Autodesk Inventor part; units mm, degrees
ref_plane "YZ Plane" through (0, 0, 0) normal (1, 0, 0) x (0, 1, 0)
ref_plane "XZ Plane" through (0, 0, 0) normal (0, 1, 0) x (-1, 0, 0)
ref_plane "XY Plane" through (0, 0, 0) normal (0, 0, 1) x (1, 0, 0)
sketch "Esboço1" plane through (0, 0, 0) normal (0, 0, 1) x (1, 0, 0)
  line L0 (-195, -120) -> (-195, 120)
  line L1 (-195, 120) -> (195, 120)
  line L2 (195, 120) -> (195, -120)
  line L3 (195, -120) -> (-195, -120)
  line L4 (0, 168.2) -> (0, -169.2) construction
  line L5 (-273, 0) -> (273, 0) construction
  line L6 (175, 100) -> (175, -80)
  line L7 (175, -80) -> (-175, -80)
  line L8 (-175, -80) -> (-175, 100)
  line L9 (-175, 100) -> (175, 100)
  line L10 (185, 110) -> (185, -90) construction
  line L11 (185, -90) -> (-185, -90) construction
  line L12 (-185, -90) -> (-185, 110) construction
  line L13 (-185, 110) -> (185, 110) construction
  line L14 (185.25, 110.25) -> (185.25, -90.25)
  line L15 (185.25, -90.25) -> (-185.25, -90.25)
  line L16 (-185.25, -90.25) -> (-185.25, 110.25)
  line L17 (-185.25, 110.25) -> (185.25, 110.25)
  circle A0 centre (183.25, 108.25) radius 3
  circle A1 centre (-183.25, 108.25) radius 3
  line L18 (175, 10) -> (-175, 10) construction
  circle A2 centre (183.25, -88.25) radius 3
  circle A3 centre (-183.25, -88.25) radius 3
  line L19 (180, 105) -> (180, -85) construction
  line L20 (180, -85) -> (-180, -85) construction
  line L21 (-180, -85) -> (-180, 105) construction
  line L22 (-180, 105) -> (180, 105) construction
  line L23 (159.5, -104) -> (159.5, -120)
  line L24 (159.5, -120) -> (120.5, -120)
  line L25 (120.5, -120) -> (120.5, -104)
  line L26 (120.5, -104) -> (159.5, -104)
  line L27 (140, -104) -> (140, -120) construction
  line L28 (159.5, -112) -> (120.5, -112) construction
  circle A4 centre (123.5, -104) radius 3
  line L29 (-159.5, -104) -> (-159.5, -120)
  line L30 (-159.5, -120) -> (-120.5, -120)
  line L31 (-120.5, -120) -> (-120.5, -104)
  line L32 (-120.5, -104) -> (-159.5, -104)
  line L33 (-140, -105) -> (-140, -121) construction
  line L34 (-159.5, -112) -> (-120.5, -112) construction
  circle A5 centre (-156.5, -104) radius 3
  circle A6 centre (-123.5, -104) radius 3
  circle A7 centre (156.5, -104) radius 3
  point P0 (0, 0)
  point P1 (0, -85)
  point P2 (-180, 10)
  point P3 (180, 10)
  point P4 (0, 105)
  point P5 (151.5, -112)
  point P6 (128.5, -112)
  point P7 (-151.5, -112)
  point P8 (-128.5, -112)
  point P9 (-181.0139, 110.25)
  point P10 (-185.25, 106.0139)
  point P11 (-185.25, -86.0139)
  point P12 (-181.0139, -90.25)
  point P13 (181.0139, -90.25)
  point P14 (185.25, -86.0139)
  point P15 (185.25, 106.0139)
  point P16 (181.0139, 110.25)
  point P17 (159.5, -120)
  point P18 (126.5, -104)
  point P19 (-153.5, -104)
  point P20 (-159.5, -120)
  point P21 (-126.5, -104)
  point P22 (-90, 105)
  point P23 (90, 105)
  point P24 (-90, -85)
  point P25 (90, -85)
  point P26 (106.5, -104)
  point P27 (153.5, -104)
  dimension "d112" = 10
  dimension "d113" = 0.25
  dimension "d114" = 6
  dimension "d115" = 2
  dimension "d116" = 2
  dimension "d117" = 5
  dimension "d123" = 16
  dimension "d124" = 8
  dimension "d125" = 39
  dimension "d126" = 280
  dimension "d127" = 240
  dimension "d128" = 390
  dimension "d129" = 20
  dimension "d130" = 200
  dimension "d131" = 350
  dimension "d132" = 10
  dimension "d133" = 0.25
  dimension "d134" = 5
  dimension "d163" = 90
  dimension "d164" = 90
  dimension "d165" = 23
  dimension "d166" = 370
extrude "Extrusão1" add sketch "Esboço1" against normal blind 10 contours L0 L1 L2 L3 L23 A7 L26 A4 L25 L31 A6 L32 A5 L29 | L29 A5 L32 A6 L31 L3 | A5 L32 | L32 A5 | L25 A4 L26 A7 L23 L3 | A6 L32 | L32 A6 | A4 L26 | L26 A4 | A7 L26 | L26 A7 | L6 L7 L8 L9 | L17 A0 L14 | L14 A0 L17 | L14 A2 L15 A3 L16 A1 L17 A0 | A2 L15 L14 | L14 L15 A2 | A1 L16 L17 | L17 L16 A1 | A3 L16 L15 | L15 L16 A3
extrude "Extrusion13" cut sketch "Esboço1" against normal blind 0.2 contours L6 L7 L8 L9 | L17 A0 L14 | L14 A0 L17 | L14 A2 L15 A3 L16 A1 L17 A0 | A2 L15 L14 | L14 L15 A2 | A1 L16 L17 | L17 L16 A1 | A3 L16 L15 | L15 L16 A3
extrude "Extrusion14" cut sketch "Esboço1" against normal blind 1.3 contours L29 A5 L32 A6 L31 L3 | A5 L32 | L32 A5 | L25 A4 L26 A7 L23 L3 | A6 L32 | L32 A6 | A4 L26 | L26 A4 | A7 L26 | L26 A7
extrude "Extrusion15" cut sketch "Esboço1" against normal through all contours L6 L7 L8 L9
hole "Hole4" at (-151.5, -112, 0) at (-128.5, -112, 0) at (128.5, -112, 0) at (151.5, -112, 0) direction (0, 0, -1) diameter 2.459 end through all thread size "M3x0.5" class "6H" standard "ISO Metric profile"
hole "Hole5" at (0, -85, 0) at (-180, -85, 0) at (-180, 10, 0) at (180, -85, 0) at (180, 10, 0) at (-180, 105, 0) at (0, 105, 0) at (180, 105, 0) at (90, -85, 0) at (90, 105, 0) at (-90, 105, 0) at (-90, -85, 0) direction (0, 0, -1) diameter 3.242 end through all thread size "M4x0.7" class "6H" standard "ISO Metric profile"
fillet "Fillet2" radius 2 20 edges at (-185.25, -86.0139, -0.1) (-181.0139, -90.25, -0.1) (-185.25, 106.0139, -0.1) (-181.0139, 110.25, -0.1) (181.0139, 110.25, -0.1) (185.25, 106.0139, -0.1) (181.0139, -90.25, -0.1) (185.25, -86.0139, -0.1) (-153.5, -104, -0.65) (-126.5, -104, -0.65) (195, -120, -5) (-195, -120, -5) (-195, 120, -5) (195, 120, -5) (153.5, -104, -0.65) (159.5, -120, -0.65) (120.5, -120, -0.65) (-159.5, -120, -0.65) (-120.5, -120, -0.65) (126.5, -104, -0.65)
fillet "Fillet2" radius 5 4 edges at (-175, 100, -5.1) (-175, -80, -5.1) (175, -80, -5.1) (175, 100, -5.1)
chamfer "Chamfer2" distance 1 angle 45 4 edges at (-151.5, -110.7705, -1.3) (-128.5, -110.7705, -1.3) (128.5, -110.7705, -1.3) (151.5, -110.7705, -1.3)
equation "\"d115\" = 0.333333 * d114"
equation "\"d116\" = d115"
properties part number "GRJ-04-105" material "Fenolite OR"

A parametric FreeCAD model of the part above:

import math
import FreeCAD as App
import Part
import Sketcher

V = App.Vector
Q = App.Units.Quantity


def edges_at(feature, points):
    """Names of the edges that pass closest to the given points."""
    edges = feature.Shape.Edges
    near = lambda p: min(range(len(edges)), key=lambda i: edges[i].distToShape(Part.Vertex(*p))[0])
    return sorted({f"Edge{near(p) + 1}" for p in points})

doc = App.newDocument("Part")
body = doc.addObject("PartDesign::Body", "Body")

sketch1 = body.newObject("Sketcher::SketchObject", "Sketch")
sketch1.AttachmentSupport = (doc.getObject("XY_Plane"), [""])
sketch1.MapMode = "FlatFace"
sketch1.addGeometry([
    Part.LineSegment(V(-195, 120, 0), V(-195, -120, 0)),
    Part.LineSegment(V(-195, -120, 0), V(195, -120, 0)),
    Part.LineSegment(V(195, -120, 0), V(195, 120, 0)),
    Part.LineSegment(V(195, 120, 0), V(-195, 120, 0)),
], False)
sketch1.addConstraint([
    Sketcher.Constraint("Coincident", 0, 2, 1, 1),
    Sketcher.Constraint("Coincident", 1, 2, 2, 1),
    Sketcher.Constraint("Coincident", 2, 2, 3, 1),
    Sketcher.Constraint("Coincident", 3, 2, 0, 1),
    Sketcher.Constraint("Vertical", 0),
    Sketcher.Constraint("Horizontal", 1),
    Sketcher.Constraint("Vertical", 2),
    Sketcher.Constraint("Horizontal", 3),
    Sketcher.Constraint("Symmetric", 0, 2, 2, 2, -1, 1),
    Sketcher.Constraint("DistanceX", 1, 1, 1, 2, Q("390 mm")),
    Sketcher.Constraint("DistanceY", 0, 2, 0, 1, Q("240 mm")),
])
pad1 = body.newObject("PartDesign::Pad", "Pad")
pad1.Profile = sketch1
pad1.Length = 10
pad1.Reversed = True

sketch2 = body.newObject("Sketcher::SketchObject", "Sketch001")
sketch2.AttachmentSupport = (doc.getObject("XY_Plane"), [""])
sketch2.MapMode = "FlatFace"
sketch2.addGeometry([
    Part.LineSegment(V(185.2, -86, 0), V(185.2, 106, 0)),
    Part.ArcOfCircle(Part.Circle(V(183.2, 108.2, 0), V(0, 0, 1), 3), math.radians(-48), math.radians(138)),
    Part.LineSegment(V(181, 110.2, 0), V(-181, 110.2, 0)),
    Part.ArcOfCircle(Part.Circle(V(-183.2, 108.2, 0), V(0, 0, 1), 3), math.radians(42), math.radians(228)),
    Part.LineSegment(V(-185.2, 106, 0), V(-185.2, -86, 0)),
    Part.ArcOfCircle(Part.Circle(V(-183.2, -88.2, 0), V(0, 0, 1), 3), math.radians(132), math.radians(318)),
    Part.LineSegment(V(-181, -90.2, 0), V(181, -90.2, 0)),
    Part.ArcOfCircle(Part.Circle(V(183.2, -88.2, 0), V(0, 0, 1), 3), math.radians(-138), math.radians(48)),
], False)
sketch2.addConstraint([
    Sketcher.Constraint("Coincident", 0, 2, 1, 1),
    Sketcher.Constraint("Coincident", 1, 2, 2, 1),
    Sketcher.Constraint("Coincident", 2, 2, 3, 1),
    Sketcher.Constraint("Coincident", 3, 2, 4, 1),
    Sketcher.Constraint("Coincident", 4, 2, 5, 1),
    Sketcher.Constraint("Coincident", 5, 2, 6, 1),
    Sketcher.Constraint("Coincident", 6, 2, 7, 1),
    Sketcher.Constraint("Coincident", 7, 2, 0, 1),
    Sketcher.Constraint("Vertical", 0),
    Sketcher.Constraint("Horizontal", 2),
    Sketcher.Constraint("Vertical", 4),
    Sketcher.Constraint("Horizontal", 6),
    Sketcher.Constraint("Equal", 1, 3),
    Sketcher.Constraint("Equal", 3, 5),
    Sketcher.Constraint("Equal", 5, 7),
    Sketcher.Constraint("Symmetric", 1, 3, 3, 3, -2),
    Sketcher.Constraint("Symmetric", 5, 3, 7, 3, -2),
    Sketcher.Constraint("Horizontal", 0, 2, 3, 2),
    Sketcher.Constraint("Vertical", 3, 3, 5, 3),
    Sketcher.Constraint("Vertical", 2, 2, 5, 2),
    Sketcher.Constraint("Radius", 1, Q("3 mm")),
    Sketcher.Constraint("DistanceX", 1, 3, 0, 2, Q("2 mm")),
    Sketcher.Constraint("DistanceY", 1, 3, 1, 2, Q("2 mm")),
    Sketcher.Constraint("DistanceX", 3, 3, 1, 3, Q("366.5 mm")),
    Sketcher.Constraint("DistanceY", 5, 3, 3, 3, Q("196.5 mm")),
    Sketcher.Constraint("DistanceY", -1, 1, 1, 3, Q("108.25 mm")),
])
pocket1 = body.newObject("PartDesign::Pocket", "Pocket")
pocket1.Profile = sketch2
pocket1.Length = 0.2

sketch3 = body.newObject("Sketcher::SketchObject", "Sketch002")
sketch3.AttachmentSupport = (doc.getObject("XY_Plane"), [""])
sketch3.MapMode = "FlatFace"
sketch3.addGeometry([
    Part.LineSegment(V(-159.5, -104, 0), V(-159.5, -120, 0)),
    Part.LineSegment(V(-159.5, -120, 0), V(-120.5, -120, 0)),
    Part.LineSegment(V(-120.5, -120, 0), V(-120.5, -104, 0)),
    Part.ArcOfCircle(Part.Circle(V(-123.5, -104, 0), V(0, 0, 1), 3), math.radians(0), math.radians(180)),
    Part.LineSegment(V(-126.5, -104, 0), V(-153.5, -104, 0)),
    Part.ArcOfCircle(Part.Circle(V(-156.5, -104, 0), V(0, 0, 1), 3), math.radians(0), math.radians(180)),
    Part.LineSegment(V(120.5, -104, 0), V(120.5, -120, 0)),
    Part.LineSegment(V(120.5, -120, 0), V(159.5, -120, 0)),
    Part.LineSegment(V(159.5, -120, 0), V(159.5, -104, 0)),
    Part.ArcOfCircle(Part.Circle(V(156.5, -104, 0), V(0, 0, 1), 3), math.radians(0), math.radians(180)),
    Part.LineSegment(V(153.5, -104, 0), V(126.5, -104, 0)),
    Part.ArcOfCircle(Part.Circle(V(123.5, -104, 0), V(0, 0, 1), 3), math.radians(0), math.radians(180)),
], False)
sketch3.addConstraint([
    Sketcher.Constraint("Coincident", 0, 2, 1, 1),
    Sketcher.Constraint("Coincident", 1, 2, 2, 1),
    Sketcher.Constraint("Tangent", 2, 2, 3, 1),
    Sketcher.Constraint("Coincident", 3, 2, 4, 1),
    Sketcher.Constraint("Coincident", 4, 2, 5, 1),
    Sketcher.Constraint("Tangent", 5, 2, 0, 1),
    Sketcher.Constraint("Coincident", 6, 2, 7, 1),
    Sketcher.Constraint("Coincident", 7, 2, 8, 1),
    Sketcher.Constraint("Tangent", 8, 2, 9, 1),
    Sketcher.Constraint("Coincident", 9, 2, 10, 1),
    Sketcher.Constraint("Coincident", 10, 2, 11, 1),
    Sketcher.Constraint("Tangent", 11, 2, 6, 1),
    Sketcher.Constraint("Vertical", 0),
    Sketcher.Constraint("Horizontal", 1),
    Sketcher.Constraint("Vertical", 2),
    Sketcher.Constraint("Horizontal", 4),
    Sketcher.Constraint("Vertical", 6),
    Sketcher.Constraint("Horizontal", 7),
    Sketcher.Constraint("Vertical", 8),
    Sketcher.Constraint("Horizontal", 10),
    Sketcher.Constraint("Equal", 3, 5),
    Sketcher.Constraint("Equal", 5, 9),
    Sketcher.Constraint("Equal", 9, 11),
    Sketcher.Constraint("Symmetric", 5, 3, 9, 3, -2),
    Sketcher.Constraint("Symmetric", 3, 3, 11, 3, -2),
    Sketcher.Constraint("Horizontal", 3, 3, 5, 3),
    Sketcher.Constraint("Horizontal", 2, 2, 3, 2),
    Sketcher.Constraint("Horizontal", 1, 2, 6, 2),
    Sketcher.Constraint("Horizontal", 8, 2, 9, 2),
    Sketcher.Constraint("Radius", 3, Q("3 mm")),
    Sketcher.Constraint("DistanceX", 1, 1, 1, 2, Q("39 mm")),
    Sketcher.Constraint("DistanceY", 0, 2, 0, 1, Q("16 mm")),
    Sketcher.Constraint("DistanceX", 3, 3, 9, 3, Q("280 mm")),
    Sketcher.Constraint("DistanceY", 3, 3, -1, 1, Q("104 mm")),
])
pocket2 = body.newObject("PartDesign::Pocket", "Pocket001")
pocket2.Profile = sketch3
pocket2.Length = 1.3

sketch4 = body.newObject("Sketcher::SketchObject", "Sketch003")
sketch4.AttachmentSupport = (doc.getObject("XY_Plane"), [""])
sketch4.MapMode = "FlatFace"
sketch4.addGeometry([
    Part.LineSegment(V(175, -80, 0), V(175, 100, 0)),
    Part.LineSegment(V(175, 100, 0), V(-175, 100, 0)),
    Part.LineSegment(V(-175, 100, 0), V(-175, -80, 0)),
    Part.LineSegment(V(-175, -80, 0), V(175, -80, 0)),
], False)
sketch4.addConstraint([
    Sketcher.Constraint("Coincident", 0, 2, 1, 1),
    Sketcher.Constraint("Coincident", 1, 2, 2, 1),
    Sketcher.Constraint("Coincident", 2, 2, 3, 1),
    Sketcher.Constraint("Coincident", 3, 2, 0, 1),
    Sketcher.Constraint("Vertical", 0),
    Sketcher.Constraint("Horizontal", 1),
    Sketcher.Constraint("Vertical", 2),
    Sketcher.Constraint("Horizontal", 3),
    Sketcher.Constraint("DistanceX", 1, 2, 1, 1, Q("350 mm")),
    Sketcher.Constraint("DistanceY", 0, 1, 0, 2, Q("180 mm")),
    Sketcher.Constraint("DistanceX", -1, 1, 0, 2, Q("175 mm")),
    Sketcher.Constraint("DistanceY", -1, 1, 0, 2, Q("100 mm")),
])
pocket3 = body.newObject("PartDesign::Pocket", "Pocket002")
pocket3.Profile = sketch4
pocket3.Type = "ThroughAll"

sketch5 = body.newObject("Sketcher::SketchObject", "Sketch004")
sketch5.AttachmentSupport = (doc.getObject("XY_Plane"), [""])
sketch5.MapMode = "FlatFace"
sketch5.addGeometry([
    Part.Circle(V(-151.5, -112, 0), V(0, 0, 1), 1.2),
    Part.Circle(V(-128.5, -112, 0), V(0, 0, 1), 1.2),
    Part.Circle(V(128.5, -112, 0), V(0, 0, 1), 1.2),
    Part.Circle(V(151.5, -112, 0), V(0, 0, 1), 1.2),
], False)
sketch5.addConstraint([
    Sketcher.Constraint("Equal", 0, 1),
    Sketcher.Constraint("Equal", 1, 2),
    Sketcher.Constraint("Equal", 2, 3),
    Sketcher.Constraint("Symmetric", 1, 3, 2, 3, -2),
    Sketcher.Constraint("Symmetric", 0, 3, 3, 3, -2),
    Sketcher.Constraint("Horizontal", 0, 3, 1, 3),
    Sketcher.Constraint("Diameter", 0, Q("2.459 mm")),
    Sketcher.Constraint("DistanceY", 0, 3, -1, 1, Q("112 mm")),
    Sketcher.Constraint("DistanceX", 0, 3, 1, 3, Q("23 mm")),
    Sketcher.Constraint("DistanceX", 1, 3, 2, 3, Q("257 mm")),
])
doc.recompute()
hole = body.newObject("PartDesign::Hole", "Hole")
hole.Profile = sketch5
hole.ThreadType = "None"
hole.Diameter = 2.459
hole.DepthType = "ThroughAll"

sketch6 = body.newObject("Sketcher::SketchObject", "Sketch005")
sketch6.AttachmentSupport = (doc.getObject("XY_Plane"), [""])
sketch6.MapMode = "FlatFace"
sketch6.addGeometry([
    Part.Circle(V(0, -85, 0), V(0, 0, 1), 1.6),
    Part.Circle(V(-180, -85, 0), V(0, 0, 1), 1.6),
    Part.Circle(V(-180, 10, 0), V(0, 0, 1), 1.6),
    Part.Circle(V(180, -85, 0), V(0, 0, 1), 1.6),
    Part.Circle(V(180, 10, 0), V(0, 0, 1), 1.6),
    Part.Circle(V(-180, 105, 0), V(0, 0, 1), 1.6),
    Part.Circle(V(0, 105, 0), V(0, 0, 1), 1.6),
    Part.Circle(V(180, 105, 0), V(0, 0, 1), 1.6),
    Part.Circle(V(90, -85, 0), V(0, 0, 1), 1.6),
    Part.Circle(V(90, 105, 0), V(0, 0, 1), 1.6),
    Part.Circle(V(-90, 105, 0), V(0, 0, 1), 1.6),
    Part.Circle(V(-90, -85, 0), V(0, 0, 1), 1.6),
], False)
sketch6.addConstraint([
    Sketcher.Constraint("Equal", 0, 1),
    Sketcher.Constraint("Equal", 1, 2),
    Sketcher.Constraint("Equal", 2, 3),
    Sketcher.Constraint("Equal", 3, 4),
    Sketcher.Constraint("Equal", 4, 5),
    Sketcher.Constraint("Equal", 5, 6),
    Sketcher.Constraint("Equal", 6, 7),
    Sketcher.Constraint("Equal", 7, 8),
    Sketcher.Constraint("Equal", 8, 9),
    Sketcher.Constraint("Equal", 9, 10),
    Sketcher.Constraint("Equal", 10, 11),
    Sketcher.Constraint("Symmetric", 1, 3, 3, 3, -2),
    Sketcher.Constraint("Symmetric", 2, 3, 4, 3, -2),
    Sketcher.Constraint("Symmetric", 5, 3, 7, 3, -2),
    Sketcher.Constraint("Symmetric", 9, 3, 10, 3, -2),
    Sketcher.Constraint("Symmetric", 8, 3, 11, 3, -2),
    Sketcher.Constraint("PointOnObject", 0, 3, -2),
    Sketcher.Constraint("PointOnObject", 6, 3, -2),
    Sketcher.Constraint("Horizontal", 0, 3, 1, 3),
    Sketcher.Constraint("Horizontal", 5, 3, 6, 3),
    Sketcher.Constraint("Horizontal", 3, 3, 8, 3),
    Sketcher.Constraint("Horizontal", 7, 3, 9, 3),
    Sketcher.Constraint("Vertical", 1, 3, 2, 3),
    Sketcher.Constraint("Vertical", 2, 3, 5, 3),
    Sketcher.Constraint("Vertical", 8, 3, 9, 3),
    Sketcher.Constraint("Diameter", 0, Q("3.242 mm")),
    Sketcher.Constraint("DistanceY", 0, 3, -1, 1, Q("85 mm")),
    Sketcher.Constraint("DistanceX", 1, 3, -1, 1, Q("180 mm")),
    Sketcher.Constraint("DistanceY", -1, 1, 2, 3, Q("10 mm")),
    Sketcher.Constraint("DistanceY", -1, 1, 5, 3, Q("105 mm")),
    Sketcher.Constraint("DistanceX", -1, 1, 8, 3, Q("90 mm")),
])
doc.recompute()
hole2 = body.newObject("PartDesign::Hole", "Hole001")
hole2.Profile = sketch6
hole2.ThreadType = "None"
hole2.Diameter = 3.242
hole2.DepthType = "ThroughAll"
doc.recompute()

fillet = body.newObject("PartDesign::Fillet", "Fillet")
fillet.Base = (hole2, edges_at(hole2, [
    (-185.25, -86.014, -0.1),
    (-181.014, -90.25, -0.1),
    (-185.25, 106.014, -0.1),
    (-181.014, 110.25, -0.1),
    (181.014, 110.25, -0.1),
    (185.25, 106.014, -0.1),
    (181.014, -90.25, -0.1),
    (185.25, -86.014, -0.1),
    (-153.5, -104, -0.65),
    (-126.5, -104, -0.65),
    (195, -120, -5),
    (-195, -120, -5),
    (-195, 120, -5),
    (195, 120, -5),
    (153.5, -104, -0.65),
    (159.5, -120, -0.65),
    (120.5, -120, -0.65),
    (-159.5, -120, -0.65),
    (-120.5, -120, -0.65),
    (126.5, -104, -0.65),
]))
fillet.Radius = 2
doc.recompute()

fillet2 = body.newObject("PartDesign::Fillet", "Fillet001")
fillet2.Base = (fillet, edges_at(fillet, [
    (-175, 100, -5.1),
    (-175, -80, -5.1),
    (175, -80, -5.1),
    (175, 100, -5.1),
]))
fillet2.Radius = 5
doc.recompute()

chamfer = body.newObject("PartDesign::Chamfer", "Chamfer")
chamfer.Base = (fillet2, edges_at(fillet2, [
    (-151.5, -110.77, -1.3),
    (-128.5, -110.77, -1.3),
    (128.5, -110.77, -1.3),
    (151.5, -110.77, -1.3),
]))
chamfer.Size = 1

doc.recompute()
